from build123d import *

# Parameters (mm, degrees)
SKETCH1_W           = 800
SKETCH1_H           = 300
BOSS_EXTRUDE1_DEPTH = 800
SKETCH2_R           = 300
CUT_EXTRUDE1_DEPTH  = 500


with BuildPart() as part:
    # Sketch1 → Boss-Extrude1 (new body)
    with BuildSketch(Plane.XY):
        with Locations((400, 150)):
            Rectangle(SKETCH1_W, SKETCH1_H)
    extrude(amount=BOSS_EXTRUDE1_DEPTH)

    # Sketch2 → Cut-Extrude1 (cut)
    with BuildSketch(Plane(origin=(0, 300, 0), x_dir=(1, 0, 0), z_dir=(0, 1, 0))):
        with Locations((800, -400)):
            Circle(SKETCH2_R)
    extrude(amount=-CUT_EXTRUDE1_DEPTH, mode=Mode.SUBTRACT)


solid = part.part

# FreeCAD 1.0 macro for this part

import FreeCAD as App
import Part
import Sketcher
Q = App.Units.Quantity

doc = App.newDocument("Part")
body = doc.addObject("PartDesign::Body", "Body")

sketch1 = body.newObject("Sketcher::SketchObject", "Sketch")
sketch1.AttachmentSupport = (doc.getObject("XY_Plane"), [""])
sketch1.MapMode = "FlatFace"
sketch1.addGeometry([
    Part.LineSegment(App.Vector(0, 300, 0), App.Vector(0, 0, 0)),
    Part.LineSegment(App.Vector(0, 0, 0), App.Vector(800, 0, 0)),
    Part.LineSegment(App.Vector(800, 0, 0), App.Vector(800, 300, 0)),
    Part.LineSegment(App.Vector(800, 300, 0), App.Vector(0, 300, 0)),
], False)
sketch1.addConstraint([
    Sketcher.Constraint("Coincident", 0, 2, 1, 1),
    Sketcher.Constraint("Coincident", 1, 2, 2, 1),
    Sketcher.Constraint("Coincident", 2, 2, 3, 1),
    Sketcher.Constraint("Coincident", 3, 2, 0, 1),
    Sketcher.Constraint("Vertical", 0),
    Sketcher.Constraint("Horizontal", 1),
    Sketcher.Constraint("Vertical", 2),
    Sketcher.Constraint("Horizontal", 3),
    Sketcher.Constraint("Coincident", 0, 2, -1, 1),
    Sketcher.Constraint("DistanceX", 1, 1, 1, 2, Q("800 mm")),
    Sketcher.Constraint("DistanceY", 0, 2, 0, 1, Q("300 mm")),
])
pad1 = body.newObject("PartDesign::Pad", "Pad")
pad1.Profile = sketch1
pad1.Length = 800

sketch2 = body.newObject("Sketcher::SketchObject", "Sketch001")
sketch2.AttachmentSupport = (doc.getObject("XZ_Plane"), [""])
sketch2.MapMode = "FlatFace"
sketch2.AttachmentOffset = App.Placement(App.Vector(0, 0, -300), App.Rotation())
sketch2.addGeometry(Part.Circle(App.Vector(800, 400, 0), App.Vector(0, 0, 1), 300), False)
sketch2.addConstraint([
    Sketcher.Constraint("Diameter", 0, Q("600 mm")),
    Sketcher.Constraint("DistanceX", -1, 1, 0, 3, Q("800 mm")),
    Sketcher.Constraint("DistanceY", -1, 1, 0, 3, Q("400 mm")),
])
pocket1 = body.newObject("PartDesign::Pocket", "Pocket")
pocket1.Profile = sketch2
pocket1.Length = 500
pocket1.Reversed = True

doc.recompute()
